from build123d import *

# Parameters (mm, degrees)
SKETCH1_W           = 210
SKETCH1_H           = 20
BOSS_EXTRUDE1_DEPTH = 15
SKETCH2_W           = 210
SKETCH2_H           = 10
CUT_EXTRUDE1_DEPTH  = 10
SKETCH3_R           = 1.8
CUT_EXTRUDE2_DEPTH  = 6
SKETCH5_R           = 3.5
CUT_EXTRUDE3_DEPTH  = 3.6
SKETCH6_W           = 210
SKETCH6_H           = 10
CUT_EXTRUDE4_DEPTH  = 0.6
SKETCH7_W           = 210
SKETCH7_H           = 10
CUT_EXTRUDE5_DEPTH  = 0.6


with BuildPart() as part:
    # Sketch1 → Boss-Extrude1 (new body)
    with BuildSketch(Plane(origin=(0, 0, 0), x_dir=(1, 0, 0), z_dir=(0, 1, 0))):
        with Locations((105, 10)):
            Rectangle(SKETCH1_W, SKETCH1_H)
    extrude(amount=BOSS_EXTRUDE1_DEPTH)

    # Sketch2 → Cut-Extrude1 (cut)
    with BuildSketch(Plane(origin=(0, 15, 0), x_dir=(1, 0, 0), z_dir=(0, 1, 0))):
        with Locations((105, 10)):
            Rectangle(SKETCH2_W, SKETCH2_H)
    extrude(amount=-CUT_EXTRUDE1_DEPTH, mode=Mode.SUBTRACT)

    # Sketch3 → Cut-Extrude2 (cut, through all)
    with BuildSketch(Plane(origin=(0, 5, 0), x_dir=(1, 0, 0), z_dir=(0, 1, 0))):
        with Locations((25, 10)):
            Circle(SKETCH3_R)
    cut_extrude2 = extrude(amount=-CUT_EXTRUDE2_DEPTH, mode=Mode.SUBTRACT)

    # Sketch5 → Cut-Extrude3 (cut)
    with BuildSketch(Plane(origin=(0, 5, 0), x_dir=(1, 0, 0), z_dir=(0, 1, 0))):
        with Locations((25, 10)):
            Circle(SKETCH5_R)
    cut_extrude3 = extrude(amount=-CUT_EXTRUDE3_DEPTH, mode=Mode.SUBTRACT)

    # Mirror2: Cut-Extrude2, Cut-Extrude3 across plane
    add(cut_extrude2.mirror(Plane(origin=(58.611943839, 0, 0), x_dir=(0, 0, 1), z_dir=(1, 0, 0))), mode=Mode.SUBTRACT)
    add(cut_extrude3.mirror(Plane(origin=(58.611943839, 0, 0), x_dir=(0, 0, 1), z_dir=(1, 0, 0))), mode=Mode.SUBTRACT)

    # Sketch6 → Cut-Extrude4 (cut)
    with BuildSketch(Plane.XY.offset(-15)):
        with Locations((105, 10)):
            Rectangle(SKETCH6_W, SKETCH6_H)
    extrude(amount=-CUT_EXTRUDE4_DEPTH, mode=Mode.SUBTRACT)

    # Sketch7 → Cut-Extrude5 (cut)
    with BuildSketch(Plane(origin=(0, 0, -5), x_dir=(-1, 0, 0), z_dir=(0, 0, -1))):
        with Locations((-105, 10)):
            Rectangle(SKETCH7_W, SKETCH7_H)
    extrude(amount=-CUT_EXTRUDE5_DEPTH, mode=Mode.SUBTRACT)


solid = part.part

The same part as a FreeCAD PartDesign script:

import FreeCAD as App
import Part
import Sketcher

V = App.Vector

doc = App.newDocument("Part")
body = doc.addObject("PartDesign::Body", "Body")

# Sketch on XZ plane
sketch1 = body.newObject("Sketcher::SketchObject", "Sketch")
sketch1.AttachmentSupport = (doc.getObject("XZ_Plane"), [""])
sketch1.MapMode = "FlatFace"
sketch1.addGeometry(Part.LineSegment(V(0, -20, 0), V(0, 0, 0)), False)
sketch1.addGeometry(Part.LineSegment(V(0, 0, 0), V(210, 0, 0)), False)
sketch1.addGeometry(Part.LineSegment(V(210, 0, 0), V(210, -20, 0)), False)
sketch1.addGeometry(Part.LineSegment(V(210, -20, 0), V(0, -20, 0)), False)
sketch1.addConstraint(Sketcher.Constraint("Coincident", 0, 2, 1, 1))
sketch1.addConstraint(Sketcher.Constraint("Coincident", 1, 2, 2, 1))
sketch1.addConstraint(Sketcher.Constraint("Coincident", 2, 2, 3, 1))
sketch1.addConstraint(Sketcher.Constraint("Coincident", 3, 2, 0, 1))
sketch1.addConstraint(Sketcher.Constraint("Vertical", 0))
sketch1.addConstraint(Sketcher.Constraint("Horizontal", 1))
sketch1.addConstraint(Sketcher.Constraint("Vertical", 2))
sketch1.addConstraint(Sketcher.Constraint("Horizontal", 3))
sketch1.addConstraint(Sketcher.Constraint("Coincident", 0, 2, -1, 1))
sketch1.addConstraint(Sketcher.Constraint("DistanceX", 1, 1, 1, 2, 210.0))
sketch1.addConstraint(Sketcher.Constraint("DistanceY", 0, 1, 0, 2, 20.0))
pad1 = body.newObject("PartDesign::Pad", "Pad")
pad1.Profile = sketch1
pad1.Length = 15
pad1.Reversed = True

# Sketch on XZ plane
sketch2 = body.newObject("Sketcher::SketchObject", "Sketch001")
sketch2.AttachmentSupport = (doc.getObject("XZ_Plane"), [""])
sketch2.MapMode = "FlatFace"
sketch2.AttachmentOffset = App.Placement(V(0, 0, -15), App.Rotation())
sketch2.addGeometry(Part.LineSegment(V(0, -15, 0), V(0, -5, 0)), False)
sketch2.addGeometry(Part.LineSegment(V(0, -5, 0), V(210, -5, 0)), False)
sketch2.addGeometry(Part.LineSegment(V(210, -5, 0), V(210, -15, 0)), False)
sketch2.addGeometry(Part.LineSegment(V(210, -15, 0), V(0, -15, 0)), False)
sketch2.addConstraint(Sketcher.Constraint("Coincident", 0, 2, 1, 1))
sketch2.addConstraint(Sketcher.Constraint("Coincident", 1, 2, 2, 1))
sketch2.addConstraint(Sketcher.Constraint("Coincident", 2, 2, 3, 1))
sketch2.addConstraint(Sketcher.Constraint("Coincident", 3, 2, 0, 1))
sketch2.addConstraint(Sketcher.Constraint("Vertical", 0))
sketch2.addConstraint(Sketcher.Constraint("Horizontal", 1))
sketch2.addConstraint(Sketcher.Constraint("Vertical", 2))
sketch2.addConstraint(Sketcher.Constraint("Horizontal", 3))
sketch2.addConstraint(Sketcher.Constraint("PointOnObject", 0, 2, -2))
sketch2.addConstraint(Sketcher.Constraint("DistanceX", 1, 1, 1, 2, 210.0))
sketch2.addConstraint(Sketcher.Constraint("DistanceY", 0, 1, 0, 2, 10.0))
sketch2.addConstraint(Sketcher.Constraint("DistanceY", 0, 2, -1, 1, 5.0))
pocket1 = body.newObject("PartDesign::Pocket", "Pocket")
pocket1.Profile = sketch2
pocket1.Length = 10
pocket1.Reversed = True

# Sketch on XZ plane
sketch3 = body.newObject("Sketcher::SketchObject", "Sketch002")
sketch3.AttachmentSupport = (doc.getObject("XZ_Plane"), [""])
sketch3.MapMode = "FlatFace"
sketch3.AttachmentOffset = App.Placement(V(0, 0, -5), App.Rotation())
sketch3.addGeometry(Part.Circle(V(25, -10, 0), V(0, 0, 1), 1.8), False)
sketch3.addConstraint(Sketcher.Constraint("Diameter", 0, 3.6))
sketch3.addConstraint(Sketcher.Constraint("DistanceX", -1, 1, 0, 3, 25.0))
sketch3.addConstraint(Sketcher.Constraint("DistanceY", 0, 3, -1, 1, 10.0))
pocket2 = body.newObject("PartDesign::Pocket", "Pocket001")
pocket2.Profile = sketch3
pocket2.Type = "ThroughAll"
pocket2.Reversed = True

# Sketch on XZ plane
sketch4 = body.newObject("Sketcher::SketchObject", "Sketch003")
sketch4.AttachmentSupport = (doc.getObject("XZ_Plane"), [""])
sketch4.MapMode = "FlatFace"
sketch4.AttachmentOffset = App.Placement(V(0, 0, -5), App.Rotation())
sketch4.addGeometry(Part.Circle(V(25, -10, 0), V(0, 0, 1), 3.5), False)
sketch4.addConstraint(Sketcher.Constraint("Diameter", 0, 7.0))
sketch4.addConstraint(Sketcher.Constraint("DistanceX", -1, 1, 0, 3, 25.0))
sketch4.addConstraint(Sketcher.Constraint("DistanceY", 0, 3, -1, 1, 10.0))
pocket3 = body.newObject("PartDesign::Pocket", "Pocket002")
pocket3.Profile = sketch4
pocket3.Length = 3.6
pocket3.Reversed = True
doc.recompute()

datumplane = body.newObject("PartDesign::Plane", "DatumPlane")
datumplane.AttachmentSupport = (doc.getObject("YZ_Plane"), [""])
datumplane.MapMode = "FlatFace"
datumplane.AttachmentOffset = App.Placement(V(0, 0, 58.611944), App.Rotation())
mirrored = body.newObject("PartDesign::Mirrored", "Mirrored")
mirrored.Originals = [pocket2, pocket3]
mirrored.MirrorPlane = (datumplane, [""])
body.Tip = mirrored

# Sketch on XY plane
sketch5 = body.newObject("Sketcher::SketchObject", "Sketch004")
sketch5.AttachmentSupport = (doc.getObject("XY_Plane"), [""])
sketch5.MapMode = "FlatFace"
sketch5.AttachmentOffset = App.Placement(V(0, 0, -15), App.Rotation())
sketch5.addGeometry(Part.LineSegment(V(0, 15, 0), V(0, 5, 0)), False)
sketch5.addGeometry(Part.LineSegment(V(0, 5, 0), V(210, 5, 0)), False)
sketch5.addGeometry(Part.LineSegment(V(210, 5, 0), V(210, 15, 0)), False)
sketch5.addGeometry(Part.LineSegment(V(210, 15, 0), V(0, 15, 0)), False)
sketch5.addConstraint(Sketcher.Constraint("Coincident", 0, 2, 1, 1))
sketch5.addConstraint(Sketcher.Constraint("Coincident", 1, 2, 2, 1))
sketch5.addConstraint(Sketcher.Constraint("Coincident", 2, 2, 3, 1))
sketch5.addConstraint(Sketcher.Constraint("Coincident", 3, 2, 0, 1))
sketch5.addConstraint(Sketcher.Constraint("Vertical", 0))
sketch5.addConstraint(Sketcher.Constraint("Horizontal", 1))
sketch5.addConstraint(Sketcher.Constraint("Vertical", 2))
sketch5.addConstraint(Sketcher.Constraint("Horizontal", 3))
sketch5.addConstraint(Sketcher.Constraint("PointOnObject", 0, 2, -2))
sketch5.addConstraint(Sketcher.Constraint("DistanceX", 1, 1, 1, 2, 210.0))
sketch5.addConstraint(Sketcher.Constraint("DistanceY", 0, 2, 0, 1, 10.0))
sketch5.addConstraint(Sketcher.Constraint("DistanceY", -1, 1, 0, 2, 5.0))
pocket4 = body.newObject("PartDesign::Pocket", "Pocket003")
pocket4.Profile = sketch5
pocket4.Length = 0.6

# Sketch on XY plane
sketch6 = body.newObject("Sketcher::SketchObject", "Sketch005")
sketch6.AttachmentSupport = (doc.getObject("XY_Plane"), [""])
sketch6.MapMode = "FlatFace"
sketch6.AttachmentOffset = App.Placement(V(0, 0, -5), App.Rotation())
sketch6.addGeometry(Part.LineSegment(V(210, 15, 0), V(210, 5, 0)), False)
sketch6.addGeometry(Part.LineSegment(V(210, 5, 0), V(0, 5, 0)), False)
sketch6.addGeometry(Part.LineSegment(V(0, 5, 0), V(0, 15, 0)), False)
sketch6.addGeometry(Part.LineSegment(V(0, 15, 0), V(210, 15, 0)), False)
sketch6.addConstraint(Sketcher.Constraint("Coincident", 0, 2, 1, 1))
sketch6.addConstraint(Sketcher.Constraint("Coincident", 1, 2, 2, 1))
sketch6.addConstraint(Sketcher.Constraint("Coincident", 2, 2, 3, 1))
sketch6.addConstraint(Sketcher.Constraint("Coincident", 3, 2, 0, 1))
sketch6.addConstraint(Sketcher.Constraint("Vertical", 0))
sketch6.addConstraint(Sketcher.Constraint("Horizontal", 1))
sketch6.addConstraint(Sketcher.Constraint("Vertical", 2))
sketch6.addConstraint(Sketcher.Constraint("Horizontal", 3))
sketch6.addConstraint(Sketcher.Constraint("PointOnObject", 1, 2, -2))
sketch6.addConstraint(Sketcher.Constraint("DistanceX", 1, 2, 1, 1, 210.0))
sketch6.addConstraint(Sketcher.Constraint("DistanceY", 0, 2, 0, 1, 10.0))
sketch6.addConstraint(Sketcher.Constraint("DistanceY", -1, 1, 0, 2, 5.0))
pocket5 = body.newObject("PartDesign::Pocket", "Pocket004")
pocket5.Profile = sketch6
pocket5.Length = 0.6
pocket5.Reversed = True

doc.recompute()
